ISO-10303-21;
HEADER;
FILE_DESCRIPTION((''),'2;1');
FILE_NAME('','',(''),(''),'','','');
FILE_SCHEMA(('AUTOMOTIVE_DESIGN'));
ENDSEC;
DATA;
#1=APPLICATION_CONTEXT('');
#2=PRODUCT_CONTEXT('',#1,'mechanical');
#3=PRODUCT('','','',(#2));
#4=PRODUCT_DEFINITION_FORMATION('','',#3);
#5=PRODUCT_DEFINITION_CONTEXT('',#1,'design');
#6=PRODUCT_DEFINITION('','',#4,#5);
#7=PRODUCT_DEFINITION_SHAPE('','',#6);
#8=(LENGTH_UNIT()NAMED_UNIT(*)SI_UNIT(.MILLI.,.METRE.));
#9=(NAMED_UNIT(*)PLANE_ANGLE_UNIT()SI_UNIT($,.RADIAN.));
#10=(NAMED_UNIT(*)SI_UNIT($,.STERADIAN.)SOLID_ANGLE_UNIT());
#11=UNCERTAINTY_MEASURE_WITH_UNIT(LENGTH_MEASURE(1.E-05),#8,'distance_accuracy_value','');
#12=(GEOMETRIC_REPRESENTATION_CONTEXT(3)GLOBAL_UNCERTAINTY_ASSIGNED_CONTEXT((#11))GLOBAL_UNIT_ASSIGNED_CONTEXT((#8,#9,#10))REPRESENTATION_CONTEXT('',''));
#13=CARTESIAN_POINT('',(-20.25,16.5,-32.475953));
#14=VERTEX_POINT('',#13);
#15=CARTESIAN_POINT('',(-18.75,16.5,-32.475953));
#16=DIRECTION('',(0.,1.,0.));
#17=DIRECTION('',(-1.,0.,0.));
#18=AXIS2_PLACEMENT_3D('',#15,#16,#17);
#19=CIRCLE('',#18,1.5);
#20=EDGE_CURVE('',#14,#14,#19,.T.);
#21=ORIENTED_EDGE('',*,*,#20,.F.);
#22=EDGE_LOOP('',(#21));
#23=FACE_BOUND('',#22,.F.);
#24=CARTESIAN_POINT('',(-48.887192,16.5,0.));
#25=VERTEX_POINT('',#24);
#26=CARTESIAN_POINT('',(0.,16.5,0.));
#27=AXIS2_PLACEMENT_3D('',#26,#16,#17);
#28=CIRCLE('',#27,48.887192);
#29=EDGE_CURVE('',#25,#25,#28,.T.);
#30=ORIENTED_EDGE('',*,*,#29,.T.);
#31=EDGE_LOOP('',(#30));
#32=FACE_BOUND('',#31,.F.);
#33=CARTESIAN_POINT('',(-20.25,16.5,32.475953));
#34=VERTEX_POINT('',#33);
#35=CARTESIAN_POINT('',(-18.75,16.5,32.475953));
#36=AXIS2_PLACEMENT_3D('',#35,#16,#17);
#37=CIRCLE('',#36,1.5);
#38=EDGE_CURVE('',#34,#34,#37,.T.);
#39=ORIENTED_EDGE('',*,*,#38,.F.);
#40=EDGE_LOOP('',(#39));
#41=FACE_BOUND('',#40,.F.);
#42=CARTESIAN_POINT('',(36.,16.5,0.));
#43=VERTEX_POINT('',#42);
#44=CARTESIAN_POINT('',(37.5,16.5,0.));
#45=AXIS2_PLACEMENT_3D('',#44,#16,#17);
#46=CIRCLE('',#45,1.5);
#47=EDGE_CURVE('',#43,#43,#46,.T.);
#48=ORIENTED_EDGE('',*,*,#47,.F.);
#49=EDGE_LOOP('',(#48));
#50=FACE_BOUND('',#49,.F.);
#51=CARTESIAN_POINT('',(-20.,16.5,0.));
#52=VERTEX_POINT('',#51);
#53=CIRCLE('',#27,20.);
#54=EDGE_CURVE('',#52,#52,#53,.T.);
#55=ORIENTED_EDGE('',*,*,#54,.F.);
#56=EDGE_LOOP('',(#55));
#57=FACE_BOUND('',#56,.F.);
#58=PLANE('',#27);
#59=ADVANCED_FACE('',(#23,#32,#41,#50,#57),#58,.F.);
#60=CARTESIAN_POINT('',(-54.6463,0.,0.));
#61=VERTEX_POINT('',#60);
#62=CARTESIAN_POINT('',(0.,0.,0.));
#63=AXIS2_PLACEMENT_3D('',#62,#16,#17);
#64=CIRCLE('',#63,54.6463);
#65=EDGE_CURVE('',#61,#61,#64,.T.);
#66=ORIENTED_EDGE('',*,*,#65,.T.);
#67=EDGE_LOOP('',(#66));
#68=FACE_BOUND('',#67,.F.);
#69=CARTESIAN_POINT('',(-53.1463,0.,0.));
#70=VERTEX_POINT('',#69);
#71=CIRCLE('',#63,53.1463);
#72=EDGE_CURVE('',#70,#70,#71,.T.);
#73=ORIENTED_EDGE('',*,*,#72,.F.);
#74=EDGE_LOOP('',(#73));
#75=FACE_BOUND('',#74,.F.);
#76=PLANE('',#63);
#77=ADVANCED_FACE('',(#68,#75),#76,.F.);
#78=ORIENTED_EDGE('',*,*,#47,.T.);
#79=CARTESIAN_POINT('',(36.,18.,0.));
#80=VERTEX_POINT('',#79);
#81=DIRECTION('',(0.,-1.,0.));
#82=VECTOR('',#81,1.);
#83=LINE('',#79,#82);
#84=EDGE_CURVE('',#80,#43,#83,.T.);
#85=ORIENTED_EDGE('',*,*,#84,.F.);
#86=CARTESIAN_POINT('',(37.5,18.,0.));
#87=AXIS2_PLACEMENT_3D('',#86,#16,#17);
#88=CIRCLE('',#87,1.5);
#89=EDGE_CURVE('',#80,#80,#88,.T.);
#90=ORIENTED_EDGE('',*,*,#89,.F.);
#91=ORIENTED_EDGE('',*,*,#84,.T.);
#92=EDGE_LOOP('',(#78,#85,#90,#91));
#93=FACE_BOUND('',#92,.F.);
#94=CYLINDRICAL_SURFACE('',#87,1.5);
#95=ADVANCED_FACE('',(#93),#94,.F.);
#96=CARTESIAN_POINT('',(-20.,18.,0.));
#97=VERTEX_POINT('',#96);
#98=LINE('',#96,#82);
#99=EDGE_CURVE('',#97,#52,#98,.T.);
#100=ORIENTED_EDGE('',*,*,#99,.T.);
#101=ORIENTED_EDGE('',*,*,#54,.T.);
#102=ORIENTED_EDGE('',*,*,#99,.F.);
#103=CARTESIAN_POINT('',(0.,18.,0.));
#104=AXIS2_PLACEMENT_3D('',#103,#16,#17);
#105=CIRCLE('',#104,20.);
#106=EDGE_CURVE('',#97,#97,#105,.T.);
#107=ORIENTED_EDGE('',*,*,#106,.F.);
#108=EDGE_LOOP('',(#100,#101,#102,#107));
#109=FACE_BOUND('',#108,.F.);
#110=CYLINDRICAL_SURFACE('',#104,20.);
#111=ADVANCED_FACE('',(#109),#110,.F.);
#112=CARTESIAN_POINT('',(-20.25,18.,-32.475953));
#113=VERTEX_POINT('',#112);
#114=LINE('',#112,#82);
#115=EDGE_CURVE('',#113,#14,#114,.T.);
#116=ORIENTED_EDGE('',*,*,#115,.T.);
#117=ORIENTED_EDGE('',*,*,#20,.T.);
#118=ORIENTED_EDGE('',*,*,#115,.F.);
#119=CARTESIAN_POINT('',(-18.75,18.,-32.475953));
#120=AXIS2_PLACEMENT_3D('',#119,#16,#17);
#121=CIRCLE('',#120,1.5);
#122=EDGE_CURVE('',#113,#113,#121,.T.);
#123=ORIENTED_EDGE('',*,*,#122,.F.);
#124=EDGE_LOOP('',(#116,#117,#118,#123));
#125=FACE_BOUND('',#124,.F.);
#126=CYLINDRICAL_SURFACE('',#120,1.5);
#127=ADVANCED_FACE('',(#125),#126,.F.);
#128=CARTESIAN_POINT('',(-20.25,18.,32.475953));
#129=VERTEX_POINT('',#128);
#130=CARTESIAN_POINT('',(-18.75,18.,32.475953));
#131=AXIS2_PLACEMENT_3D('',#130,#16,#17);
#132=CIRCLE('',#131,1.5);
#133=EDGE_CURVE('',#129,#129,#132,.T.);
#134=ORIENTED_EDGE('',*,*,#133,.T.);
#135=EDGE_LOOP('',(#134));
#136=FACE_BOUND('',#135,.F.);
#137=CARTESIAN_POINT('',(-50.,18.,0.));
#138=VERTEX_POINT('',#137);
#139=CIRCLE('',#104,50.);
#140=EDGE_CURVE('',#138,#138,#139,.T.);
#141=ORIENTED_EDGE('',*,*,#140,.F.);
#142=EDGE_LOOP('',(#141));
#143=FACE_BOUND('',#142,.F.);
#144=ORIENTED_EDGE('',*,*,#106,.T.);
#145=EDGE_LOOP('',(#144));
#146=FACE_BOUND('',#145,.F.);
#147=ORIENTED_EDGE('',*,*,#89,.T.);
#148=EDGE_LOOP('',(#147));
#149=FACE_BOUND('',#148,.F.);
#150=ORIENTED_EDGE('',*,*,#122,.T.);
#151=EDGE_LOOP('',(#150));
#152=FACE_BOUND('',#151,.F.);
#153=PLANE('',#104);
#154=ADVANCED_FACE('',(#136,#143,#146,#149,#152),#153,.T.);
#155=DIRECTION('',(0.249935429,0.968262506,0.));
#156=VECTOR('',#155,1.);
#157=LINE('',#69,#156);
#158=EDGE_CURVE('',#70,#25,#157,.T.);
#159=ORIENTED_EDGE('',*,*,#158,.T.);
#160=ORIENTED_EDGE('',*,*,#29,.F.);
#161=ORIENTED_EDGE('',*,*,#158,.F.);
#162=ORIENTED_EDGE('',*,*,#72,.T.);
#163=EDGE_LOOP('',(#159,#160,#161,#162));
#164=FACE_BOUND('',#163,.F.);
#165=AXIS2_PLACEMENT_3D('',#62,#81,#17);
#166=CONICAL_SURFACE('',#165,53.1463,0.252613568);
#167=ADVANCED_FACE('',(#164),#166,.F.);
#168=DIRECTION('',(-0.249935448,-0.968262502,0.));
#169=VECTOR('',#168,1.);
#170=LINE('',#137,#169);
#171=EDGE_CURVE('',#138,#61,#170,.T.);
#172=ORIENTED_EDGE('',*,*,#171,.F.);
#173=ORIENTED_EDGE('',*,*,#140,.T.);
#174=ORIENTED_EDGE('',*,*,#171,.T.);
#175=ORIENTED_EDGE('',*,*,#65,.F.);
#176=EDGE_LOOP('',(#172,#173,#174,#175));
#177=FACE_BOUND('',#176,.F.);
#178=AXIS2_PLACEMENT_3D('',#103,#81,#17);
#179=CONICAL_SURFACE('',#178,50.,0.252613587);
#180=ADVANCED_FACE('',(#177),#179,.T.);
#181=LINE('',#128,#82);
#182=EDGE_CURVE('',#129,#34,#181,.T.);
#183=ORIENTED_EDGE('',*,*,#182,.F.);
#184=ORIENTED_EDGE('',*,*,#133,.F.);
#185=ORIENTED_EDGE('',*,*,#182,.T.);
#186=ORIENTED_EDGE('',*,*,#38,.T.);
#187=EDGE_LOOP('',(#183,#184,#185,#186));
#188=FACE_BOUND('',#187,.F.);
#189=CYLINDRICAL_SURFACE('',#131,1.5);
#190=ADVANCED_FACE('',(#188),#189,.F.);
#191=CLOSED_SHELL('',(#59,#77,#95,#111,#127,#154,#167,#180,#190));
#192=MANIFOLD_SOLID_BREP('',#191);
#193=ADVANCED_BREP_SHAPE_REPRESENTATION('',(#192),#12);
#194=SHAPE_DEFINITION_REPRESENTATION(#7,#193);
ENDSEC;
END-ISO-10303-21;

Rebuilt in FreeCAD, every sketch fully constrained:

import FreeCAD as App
import Part
import Sketcher
Q = App.Units.Quantity

doc = App.newDocument("Part")
body = doc.addObject("PartDesign::Body", "Body")

sketch1 = body.newObject("Sketcher::SketchObject", "Sketch")
sketch1.AttachmentSupport = (doc.getObject("XY_Plane"), [""])
sketch1.MapMode = "FlatFace"
sketch1.addGeometry([
    Part.LineSegment(App.Vector(-54.6, 0, 0), App.Vector(-53.1, 0, 0)),
    Part.LineSegment(App.Vector(-53.1, 0, 0), App.Vector(-48.9, 16.5, 0)),
    Part.LineSegment(App.Vector(-48.9, 16.5, 0), App.Vector(0, 16.5, 0)),
    Part.LineSegment(App.Vector(0, 16.5, 0), App.Vector(0, 18, 0)),
    Part.LineSegment(App.Vector(0, 18, 0), App.Vector(-50, 18, 0)),
    Part.LineSegment(App.Vector(-50, 18, 0), App.Vector(-54.6, 0, 0)),
], False)
sketch1.addConstraint([
    Sketcher.Constraint("Coincident", 0, 2, 1, 1),
    Sketcher.Constraint("Coincident", 1, 2, 2, 1),
    Sketcher.Constraint("Coincident", 2, 2, 3, 1),
    Sketcher.Constraint("Coincident", 3, 2, 4, 1),
    Sketcher.Constraint("Coincident", 4, 2, 5, 1),
    Sketcher.Constraint("Coincident", 5, 2, 0, 1),
    Sketcher.Constraint("Horizontal", 0),
    Sketcher.Constraint("Horizontal", 2),
    Sketcher.Constraint("Vertical", 3),
    Sketcher.Constraint("Horizontal", 4),
    Sketcher.Constraint("PointOnObject", 0, 2, -1),
    Sketcher.Constraint("PointOnObject", 2, 2, -2),
    Sketcher.Constraint("Parallel", 1, 5),
    Sketcher.Constraint("Equal", 0, 3),
    Sketcher.Constraint("DistanceX", 4, 2, 4, 1, Q("50 mm")),
    Sketcher.Constraint("DistanceX", 0, 1, 0, 2, Q("1.5 mm")),
    Sketcher.Constraint("DistanceY", -1, 1, 3, 2, Q("18 mm")),
    Sketcher.Constraint("Distance", 5, Q("18.59 mm")),
])
revolution = body.newObject("PartDesign::Revolution", "Revolution")
revolution.Profile = sketch1
revolution.ReferenceAxis = (sketch1, ["V_Axis"])
revolution.Angle = 360

sketch2 = body.newObject("Sketcher::SketchObject", "Sketch001")
sketch2.AttachmentSupport = (doc.getObject("XZ_Plane"), [""])
sketch2.MapMode = "FlatFace"
sketch2.AttachmentOffset = App.Placement(App.Vector(0, 0, -18), App.Rotation())
sketch2.addGeometry([
    Part.Circle(App.Vector(37.5, 0, 0), App.Vector(0, 0, 1), 1.5),
    Part.Circle(App.Vector(-18.8, 32.5, 0), App.Vector(0, 0, 1), 1.5),
    Part.Circle(App.Vector(-18.8, -32.5, 0), App.Vector(0, 0, 1), 1.5),
    Part.Circle(App.Vector(0, 0, 0), App.Vector(0, 0, 1), 1.5),
], False)
sketch2.addConstraint([
    Sketcher.Constraint("Coincident", 3, 3, -1, 1),
    Sketcher.Constraint("Equal", 0, 1),
    Sketcher.Constraint("Equal", 1, 2),
    Sketcher.Constraint("Equal", 2, 3),
    Sketcher.Constraint("Symmetric", 1, 3, 2, 3, -1),
    Sketcher.Constraint("PointOnObject", 0, 3, -1),
    Sketcher.Constraint("Diameter", 0, Q("3 mm")),
    Sketcher.Constraint("DistanceX", -1, 1, 0, 3, Q("37.5 mm")),
    Sketcher.Constraint("DistanceX", 1, 3, -1, 1, Q("18.75 mm")),
    Sketcher.Constraint("DistanceY", -1, 1, 1, 3, Q("32.475953 mm")),
])
pocket1 = body.newObject("PartDesign::Pocket", "Pocket")
pocket1.Profile = sketch2
pocket1.Length = 25
pocket1.Reversed = True

sketch3 = body.newObject("Sketcher::SketchObject", "Sketch002")
sketch3.AttachmentSupport = (doc.getObject("XZ_Plane"), [""])
sketch3.MapMode = "FlatFace"
sketch3.AttachmentOffset = App.Placement(App.Vector(0, 0, -18), App.Rotation())
sketch3.addGeometry(Part.Circle(App.Vector(0, 0, 0), App.Vector(0, 0, 1), 20), False)
sketch3.addConstraint([
    Sketcher.Constraint("Coincident", 0, 3, -1, 1),
    Sketcher.Constraint("Diameter", 0, Q("40 mm")),
])
pocket2 = body.newObject("PartDesign::Pocket", "Pocket001")
pocket2.Profile = sketch3
pocket2.Length = 5
pocket2.Reversed = True

doc.recompute()
